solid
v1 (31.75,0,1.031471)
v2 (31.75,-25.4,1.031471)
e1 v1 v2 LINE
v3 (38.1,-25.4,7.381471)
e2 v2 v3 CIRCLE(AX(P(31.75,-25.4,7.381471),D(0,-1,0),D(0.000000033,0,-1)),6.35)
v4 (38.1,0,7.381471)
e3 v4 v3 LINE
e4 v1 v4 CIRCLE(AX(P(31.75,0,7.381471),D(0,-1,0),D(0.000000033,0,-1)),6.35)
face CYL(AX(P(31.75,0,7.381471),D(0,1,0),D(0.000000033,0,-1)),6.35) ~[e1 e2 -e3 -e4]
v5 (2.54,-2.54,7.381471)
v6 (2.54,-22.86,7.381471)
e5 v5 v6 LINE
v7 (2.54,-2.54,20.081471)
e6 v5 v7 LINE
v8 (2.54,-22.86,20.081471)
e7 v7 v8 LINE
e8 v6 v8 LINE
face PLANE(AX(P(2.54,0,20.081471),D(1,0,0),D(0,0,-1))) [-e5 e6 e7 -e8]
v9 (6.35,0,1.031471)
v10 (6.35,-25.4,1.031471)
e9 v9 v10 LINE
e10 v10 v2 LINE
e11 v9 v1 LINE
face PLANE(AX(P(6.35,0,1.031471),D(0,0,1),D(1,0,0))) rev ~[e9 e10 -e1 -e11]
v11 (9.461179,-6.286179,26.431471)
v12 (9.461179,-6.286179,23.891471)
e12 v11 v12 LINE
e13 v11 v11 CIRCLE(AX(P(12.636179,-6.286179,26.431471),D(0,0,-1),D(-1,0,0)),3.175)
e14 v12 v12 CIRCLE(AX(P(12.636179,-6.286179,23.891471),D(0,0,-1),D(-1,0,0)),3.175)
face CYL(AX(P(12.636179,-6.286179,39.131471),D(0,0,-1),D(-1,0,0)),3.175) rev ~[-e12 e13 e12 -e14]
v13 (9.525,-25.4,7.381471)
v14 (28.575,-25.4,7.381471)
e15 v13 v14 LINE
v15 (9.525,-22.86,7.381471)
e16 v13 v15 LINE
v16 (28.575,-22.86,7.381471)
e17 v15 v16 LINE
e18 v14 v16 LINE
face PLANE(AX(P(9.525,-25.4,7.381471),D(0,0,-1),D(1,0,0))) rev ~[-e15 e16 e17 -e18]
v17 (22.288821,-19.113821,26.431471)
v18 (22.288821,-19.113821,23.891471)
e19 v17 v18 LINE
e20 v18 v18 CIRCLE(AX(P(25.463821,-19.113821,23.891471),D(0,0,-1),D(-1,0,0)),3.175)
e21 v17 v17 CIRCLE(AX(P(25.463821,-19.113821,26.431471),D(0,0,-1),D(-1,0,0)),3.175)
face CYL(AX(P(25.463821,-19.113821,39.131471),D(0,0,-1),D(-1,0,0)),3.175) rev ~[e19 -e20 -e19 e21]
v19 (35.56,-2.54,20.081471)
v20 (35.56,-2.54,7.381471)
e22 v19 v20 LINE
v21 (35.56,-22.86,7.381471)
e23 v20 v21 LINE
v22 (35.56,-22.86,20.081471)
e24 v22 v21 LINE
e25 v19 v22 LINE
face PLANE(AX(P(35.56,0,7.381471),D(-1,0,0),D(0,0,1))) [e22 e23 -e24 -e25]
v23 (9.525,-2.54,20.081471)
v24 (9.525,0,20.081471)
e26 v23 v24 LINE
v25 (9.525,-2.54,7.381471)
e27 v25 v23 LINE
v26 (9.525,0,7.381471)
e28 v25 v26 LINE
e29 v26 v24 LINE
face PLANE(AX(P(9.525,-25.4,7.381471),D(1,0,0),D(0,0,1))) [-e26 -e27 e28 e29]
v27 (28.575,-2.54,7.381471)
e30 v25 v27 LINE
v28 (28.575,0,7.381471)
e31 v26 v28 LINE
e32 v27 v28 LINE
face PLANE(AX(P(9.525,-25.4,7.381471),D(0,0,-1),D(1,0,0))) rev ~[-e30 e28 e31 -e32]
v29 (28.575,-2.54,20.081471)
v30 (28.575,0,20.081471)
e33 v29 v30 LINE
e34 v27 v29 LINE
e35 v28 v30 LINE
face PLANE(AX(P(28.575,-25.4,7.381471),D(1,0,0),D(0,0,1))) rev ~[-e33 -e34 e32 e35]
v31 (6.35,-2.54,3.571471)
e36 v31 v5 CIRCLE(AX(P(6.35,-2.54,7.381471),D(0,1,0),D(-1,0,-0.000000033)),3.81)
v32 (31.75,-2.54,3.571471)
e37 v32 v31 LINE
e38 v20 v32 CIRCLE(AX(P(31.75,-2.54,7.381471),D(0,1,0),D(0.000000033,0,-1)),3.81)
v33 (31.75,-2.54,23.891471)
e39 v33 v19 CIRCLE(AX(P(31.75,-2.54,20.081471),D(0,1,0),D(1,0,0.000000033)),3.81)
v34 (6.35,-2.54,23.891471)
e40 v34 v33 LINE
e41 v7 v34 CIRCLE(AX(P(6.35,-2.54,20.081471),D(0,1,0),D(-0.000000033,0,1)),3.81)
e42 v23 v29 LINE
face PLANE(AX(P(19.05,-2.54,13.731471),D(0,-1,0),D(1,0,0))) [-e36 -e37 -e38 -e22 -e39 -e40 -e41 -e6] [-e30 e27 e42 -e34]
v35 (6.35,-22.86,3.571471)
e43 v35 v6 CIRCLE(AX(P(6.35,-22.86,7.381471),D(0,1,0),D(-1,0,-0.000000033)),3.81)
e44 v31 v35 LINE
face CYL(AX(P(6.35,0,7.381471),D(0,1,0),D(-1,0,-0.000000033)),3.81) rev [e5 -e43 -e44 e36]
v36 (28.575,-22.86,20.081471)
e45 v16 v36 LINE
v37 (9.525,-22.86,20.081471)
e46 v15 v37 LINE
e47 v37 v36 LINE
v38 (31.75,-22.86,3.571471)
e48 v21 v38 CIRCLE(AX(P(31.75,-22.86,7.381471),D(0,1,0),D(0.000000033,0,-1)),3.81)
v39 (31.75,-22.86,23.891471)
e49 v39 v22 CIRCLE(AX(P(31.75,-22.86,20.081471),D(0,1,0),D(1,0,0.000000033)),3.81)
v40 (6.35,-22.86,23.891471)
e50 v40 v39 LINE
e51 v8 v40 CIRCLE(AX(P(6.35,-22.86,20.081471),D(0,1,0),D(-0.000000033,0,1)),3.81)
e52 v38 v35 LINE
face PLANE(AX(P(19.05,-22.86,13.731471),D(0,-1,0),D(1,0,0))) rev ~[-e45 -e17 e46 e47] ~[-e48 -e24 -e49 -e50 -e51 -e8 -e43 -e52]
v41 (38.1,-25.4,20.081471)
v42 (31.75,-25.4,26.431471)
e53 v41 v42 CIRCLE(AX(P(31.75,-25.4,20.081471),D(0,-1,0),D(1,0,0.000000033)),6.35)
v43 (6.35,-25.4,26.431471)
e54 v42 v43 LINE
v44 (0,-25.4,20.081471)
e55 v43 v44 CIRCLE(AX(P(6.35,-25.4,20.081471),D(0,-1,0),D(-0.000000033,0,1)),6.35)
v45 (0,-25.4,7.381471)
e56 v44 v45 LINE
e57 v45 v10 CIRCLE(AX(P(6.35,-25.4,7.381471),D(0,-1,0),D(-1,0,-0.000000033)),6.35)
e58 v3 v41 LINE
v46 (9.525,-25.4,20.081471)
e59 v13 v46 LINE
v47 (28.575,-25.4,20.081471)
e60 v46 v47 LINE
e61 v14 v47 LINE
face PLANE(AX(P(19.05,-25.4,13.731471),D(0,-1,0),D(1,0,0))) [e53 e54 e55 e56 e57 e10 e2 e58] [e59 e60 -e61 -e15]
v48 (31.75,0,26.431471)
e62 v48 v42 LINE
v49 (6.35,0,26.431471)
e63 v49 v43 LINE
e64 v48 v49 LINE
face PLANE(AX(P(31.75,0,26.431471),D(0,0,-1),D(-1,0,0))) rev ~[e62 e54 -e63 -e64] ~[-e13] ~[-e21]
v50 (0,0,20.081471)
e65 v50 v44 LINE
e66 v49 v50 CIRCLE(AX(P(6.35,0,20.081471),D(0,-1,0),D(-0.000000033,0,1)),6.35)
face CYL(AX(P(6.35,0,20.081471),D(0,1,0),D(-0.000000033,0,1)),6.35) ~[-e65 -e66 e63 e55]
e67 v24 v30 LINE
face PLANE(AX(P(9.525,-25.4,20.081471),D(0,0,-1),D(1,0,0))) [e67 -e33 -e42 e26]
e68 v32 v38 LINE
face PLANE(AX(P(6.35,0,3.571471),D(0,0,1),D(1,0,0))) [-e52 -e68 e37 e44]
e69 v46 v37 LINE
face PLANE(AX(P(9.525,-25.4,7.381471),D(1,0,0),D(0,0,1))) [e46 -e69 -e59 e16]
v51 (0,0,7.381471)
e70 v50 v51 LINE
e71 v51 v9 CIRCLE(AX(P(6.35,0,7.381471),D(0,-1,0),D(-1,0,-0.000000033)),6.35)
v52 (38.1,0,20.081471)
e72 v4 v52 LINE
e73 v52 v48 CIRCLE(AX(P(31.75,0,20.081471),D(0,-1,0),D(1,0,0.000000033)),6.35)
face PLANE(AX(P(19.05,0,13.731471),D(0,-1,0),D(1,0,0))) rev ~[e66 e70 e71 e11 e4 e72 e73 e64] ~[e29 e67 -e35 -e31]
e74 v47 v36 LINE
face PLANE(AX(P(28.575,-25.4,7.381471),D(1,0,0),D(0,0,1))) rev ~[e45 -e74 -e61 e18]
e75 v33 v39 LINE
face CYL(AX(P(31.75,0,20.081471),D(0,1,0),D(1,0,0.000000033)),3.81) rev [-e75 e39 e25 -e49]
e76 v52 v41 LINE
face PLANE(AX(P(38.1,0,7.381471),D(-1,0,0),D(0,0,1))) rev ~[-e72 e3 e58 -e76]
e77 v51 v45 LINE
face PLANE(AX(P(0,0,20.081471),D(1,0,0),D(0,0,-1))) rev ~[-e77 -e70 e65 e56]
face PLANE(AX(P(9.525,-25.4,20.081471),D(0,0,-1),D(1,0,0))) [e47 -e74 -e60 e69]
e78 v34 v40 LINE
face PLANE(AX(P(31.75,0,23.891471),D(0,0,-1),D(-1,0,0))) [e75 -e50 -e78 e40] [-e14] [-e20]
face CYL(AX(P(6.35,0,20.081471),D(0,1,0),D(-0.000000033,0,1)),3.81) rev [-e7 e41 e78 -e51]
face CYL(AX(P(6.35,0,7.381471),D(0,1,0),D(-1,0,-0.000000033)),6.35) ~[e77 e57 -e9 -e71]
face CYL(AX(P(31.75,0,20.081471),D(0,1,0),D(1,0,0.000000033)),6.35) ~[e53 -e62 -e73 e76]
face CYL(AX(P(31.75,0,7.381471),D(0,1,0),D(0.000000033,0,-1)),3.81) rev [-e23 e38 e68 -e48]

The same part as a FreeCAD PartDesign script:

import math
import FreeCAD as App
import Part
import Sketcher

V = App.Vector
Q = App.Units.Quantity


def faces_at(feature, points):
    """Names of the faces that lie closest to the given points."""
    faces = feature.Shape.Faces
    near = lambda p: min(range(len(faces)), key=lambda i: faces[i].distToShape(Part.Vertex(*p))[0])
    return sorted({f"Face{near(p) + 1}" for p in points})


def add_polygon(sketch, points):
    """Adds a closed chain of lines whose ends are joined by coincident constraints."""
    first, n = sketch.GeometryCount, len(points)
    for a, b in zip(points, points[1:] + points[:1]):
        sketch.addGeometry(Part.LineSegment(App.Vector(*a, 0), App.Vector(*b, 0)), False)
    for i in range(n):
        sketch.addConstraint(Sketcher.Constraint("Coincident", first + i, 2, first + (i + 1) % n, 1))

doc = App.newDocument("Part")
body = doc.addObject("PartDesign::Body", "Body")

sketch1 = body.newObject("Sketcher::SketchObject", "Sketch")
sketch1.AttachmentSupport = (doc.getObject("XZ_Plane"), [""])
sketch1.MapMode = "FlatFace"
sketch1.addGeometry(Part.ArcOfCircle(Part.Circle(V(6, 7, 0), V(0, 0, 1), 6), math.radians(-180), math.radians(-90)), False)
sketch1.addGeometry(Part.LineSegment(V(6, 1, 0), V(32, 1, 0)), False)
sketch1.addGeometry(Part.ArcOfCircle(Part.Circle(V(32, 7, 0), V(0, 0, 1), 6), math.radians(-90), math.radians(0)), False)
sketch1.addGeometry(Part.LineSegment(V(38, 7, 0), V(38, 20, 0)), False)
sketch1.addGeometry(Part.ArcOfCircle(Part.Circle(V(32, 20, 0), V(0, 0, 1), 6), math.radians(0), math.radians(90)), False)
sketch1.addGeometry(Part.LineSegment(V(32, 26, 0), V(6, 26, 0)), False)
sketch1.addGeometry(Part.ArcOfCircle(Part.Circle(V(6, 20, 0), V(0, 0, 1), 6), math.radians(90), math.radians(180)), False)
sketch1.addGeometry(Part.LineSegment(V(0, 20, 0), V(0, 7, 0)), False)
sketch1.addConstraint(Sketcher.Constraint("Tangent", 0, 2, 1, 1))
sketch1.addConstraint(Sketcher.Constraint("Tangent", 1, 2, 2, 1))
sketch1.addConstraint(Sketcher.Constraint("Tangent", 2, 2, 3, 1))
sketch1.addConstraint(Sketcher.Constraint("Tangent", 3, 2, 4, 1))
sketch1.addConstraint(Sketcher.Constraint("Tangent", 4, 2, 5, 1))
sketch1.addConstraint(Sketcher.Constraint("Tangent", 5, 2, 6, 1))
sketch1.addConstraint(Sketcher.Constraint("Tangent", 6, 2, 7, 1))
sketch1.addConstraint(Sketcher.Constraint("Tangent", 7, 2, 0, 1))
sketch1.addConstraint(Sketcher.Constraint("Horizontal", 1))
sketch1.addConstraint(Sketcher.Constraint("Vertical", 3))
sketch1.addConstraint(Sketcher.Constraint("Horizontal", 5))
sketch1.addConstraint(Sketcher.Constraint("Vertical", 7))
sketch1.addConstraint(Sketcher.Constraint("Equal", 0, 2))
sketch1.addConstraint(Sketcher.Constraint("Equal", 2, 4))
sketch1.addConstraint(Sketcher.Constraint("Equal", 4, 6))
sketch1.addConstraint(Sketcher.Constraint("PointOnObject", 6, 2, -2))
sketch1.addConstraint(Sketcher.Constraint("DistanceX", 1, 1, 1, 2, Q("1 in")))
sketch1.addConstraint(Sketcher.Constraint("Radius", 0, Q("0.25 in")))
sketch1.addConstraint(Sketcher.Constraint("DistanceY", 3, 1, 3, 2, Q("0.5 in")))
sketch1.addConstraint(Sketcher.Constraint("DistanceY", -1, 1, 0, 3, 7.381471))
pad1 = body.newObject("PartDesign::Pad", "Pad")
pad1.Profile = sketch1
pad1.Length = Q("1 in")

sketch2 = body.newObject("Sketcher::SketchObject", "Sketch001")
sketch2.AttachmentSupport = (doc.getObject("XZ_Plane"), [""])
sketch2.MapMode = "FlatFace"
sketch2.AttachmentOffset = App.Placement(V(0, 0, 1 * 25.4), App.Rotation())
add_polygon(sketch2, [(10, 20), (10, 7), (29, 7), (29, 20)])
sketch2.addConstraint(Sketcher.Constraint("Vertical", 0))
sketch2.addConstraint(Sketcher.Constraint("Horizontal", 1))
sketch2.addConstraint(Sketcher.Constraint("Vertical", 2))
sketch2.addConstraint(Sketcher.Constraint("Horizontal", 3))
sketch2.addConstraint(Sketcher.Constraint("DistanceY", 0, 2, 0, 1, Q("0.5 in")))
sketch2.addConstraint(Sketcher.Constraint("DistanceX", 1, 1, 1, 2, Q("0.75 in")))
sketch2.addConstraint(Sketcher.Constraint("DistanceX", -1, 1, 0, 2, Q("0.375 in")))
sketch2.addConstraint(Sketcher.Constraint("DistanceY", -1, 1, 0, 2, 7.381471))
pocket1 = body.newObject("PartDesign::Pocket", "Pocket")
pocket1.Profile = sketch2
pocket1.Type = "ThroughAll"
doc.recompute()

thickness = body.newObject("PartDesign::Thickness", "Thickness")
thickness.Base = (pocket1, faces_at(pocket1, [
    (9.525, -12.7, 13.731),
    (19.05, -12.7, 20.081),
    (19.05, -12.7, 7.381),
    (28.575, -12.7, 13.731),
]))
thickness.Value = Q("0.1 in")
thickness.Reversed = True
thickness.Join = "Arc"

sketch3 = body.newObject("Sketcher::SketchObject", "Sketch002")
sketch3.AttachmentSupport = (doc.getObject("XY_Plane"), [""])
sketch3.MapMode = "FlatFace"
sketch3.AttachmentOffset = App.Placement(V(0, 0, 26.431471), App.Rotation())
sketch3.addGeometry(Part.Circle(V(12.6, -6.3, 0), V(0, 0, 1), 3.2), False)
sketch3.addGeometry(Part.Circle(V(25.5, -19.1, 0), V(0, 0, 1), 3.2), False)
sketch3.addConstraint(Sketcher.Constraint("Equal", 0, 1))
sketch3.addConstraint(Sketcher.Constraint("Diameter", 0, Q("0.25 in")))
sketch3.addConstraint(Sketcher.Constraint("DistanceX", -1, 1, 0, 3, 12.636179))
sketch3.addConstraint(Sketcher.Constraint("DistanceY", 0, 3, -1, 1, 6.286179))
sketch3.addConstraint(Sketcher.Constraint("DistanceX", -1, 1, 1, 3, 25.463821))
sketch3.addConstraint(Sketcher.Constraint("DistanceY", 1, 3, -1, 1, 19.113821))
doc.recompute()
hole = body.newObject("PartDesign::Hole", "Hole")
hole.Profile = sketch3
hole.ThreadType = "None"
hole.Diameter = Q("0.25 in")
hole.DepthType = "Dimension"
hole.Depth = Q("0.5 in")
hole.DrillPoint = "Flat"

doc.recompute()
